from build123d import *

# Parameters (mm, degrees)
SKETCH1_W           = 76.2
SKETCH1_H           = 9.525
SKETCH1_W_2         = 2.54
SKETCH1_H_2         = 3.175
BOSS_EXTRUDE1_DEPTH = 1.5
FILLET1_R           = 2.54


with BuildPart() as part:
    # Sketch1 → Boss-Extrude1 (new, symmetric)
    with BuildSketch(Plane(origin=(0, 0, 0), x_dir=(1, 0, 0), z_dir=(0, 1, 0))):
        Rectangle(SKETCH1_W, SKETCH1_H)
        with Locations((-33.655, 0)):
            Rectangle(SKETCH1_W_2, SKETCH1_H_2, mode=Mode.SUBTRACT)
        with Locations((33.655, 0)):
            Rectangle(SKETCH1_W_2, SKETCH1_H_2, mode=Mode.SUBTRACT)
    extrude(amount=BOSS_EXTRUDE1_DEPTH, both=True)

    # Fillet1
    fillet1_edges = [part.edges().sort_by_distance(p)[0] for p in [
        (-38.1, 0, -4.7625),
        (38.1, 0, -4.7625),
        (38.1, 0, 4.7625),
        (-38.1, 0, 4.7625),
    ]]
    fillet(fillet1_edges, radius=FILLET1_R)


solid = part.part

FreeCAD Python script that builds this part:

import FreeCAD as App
import Part
import Sketcher
from FreeCAD import Vector
Q = App.Units.Quantity


def edges_at(feature, points):
    """Names of the edges that pass closest to the given points."""
    edges = feature.Shape.Edges
    near = lambda p: min(range(len(edges)), key=lambda i: edges[i].distToShape(Part.Vertex(*p))[0])
    return sorted({f"Edge{near(p) + 1}" for p in points})

doc = App.newDocument("Part")
body = doc.addObject("PartDesign::Body", "Body")

# Sketch on XZ plane
sketch1 = doc.addObject("Sketcher::SketchObject", "Sketch")
body.addObject(sketch1)
sketch1.AttachmentSupport = (doc.XZ_Plane, [""])
sketch1.MapMode = "FlatFace"
sketch1.addGeometry([
    Part.LineSegment(Vector(-38.1, -4.8, 0), Vector(-38.1, 4.8, 0)),  # 0
    Part.LineSegment(Vector(-38.1, 4.8, 0), Vector(38.1, 4.8, 0)),  # 1
    Part.LineSegment(Vector(38.1, 4.8, 0), Vector(38.1, -4.8, 0)),  # 2
    Part.LineSegment(Vector(38.1, -4.8, 0), Vector(-38.1, -4.8, 0)),  # 3
    Part.LineSegment(Vector(-32.4, 1.6, 0), Vector(-34.9, 1.6, 0)),  # 4
    Part.LineSegment(Vector(-34.9, 1.6, 0), Vector(-34.9, -1.6, 0)),  # 5
    Part.LineSegment(Vector(-34.9, -1.6, 0), Vector(-32.4, -1.6, 0)),  # 6
    Part.LineSegment(Vector(-32.4, -1.6, 0), Vector(-32.4, 1.6, 0)),  # 7
    Part.LineSegment(Vector(34.9, 1.6, 0), Vector(32.4, 1.6, 0)),  # 8
    Part.LineSegment(Vector(32.4, 1.6, 0), Vector(32.4, -1.6, 0)),  # 9
    Part.LineSegment(Vector(32.4, -1.6, 0), Vector(34.9, -1.6, 0)),  # 10
    Part.LineSegment(Vector(34.9, -1.6, 0), Vector(34.9, 1.6, 0)),  # 11
], False)
sketch1.addConstraint([
    Sketcher.Constraint("Coincident", 0, 2, 1, 1),
    Sketcher.Constraint("Coincident", 1, 2, 2, 1),
    Sketcher.Constraint("Coincident", 2, 2, 3, 1),
    Sketcher.Constraint("Coincident", 3, 2, 0, 1),
    Sketcher.Constraint("Coincident", 4, 2, 5, 1),
    Sketcher.Constraint("Coincident", 5, 2, 6, 1),
    Sketcher.Constraint("Coincident", 6, 2, 7, 1),
    Sketcher.Constraint("Coincident", 7, 2, 4, 1),
    Sketcher.Constraint("Coincident", 8, 2, 9, 1),
    Sketcher.Constraint("Coincident", 9, 2, 10, 1),
    Sketcher.Constraint("Coincident", 10, 2, 11, 1),
    Sketcher.Constraint("Coincident", 11, 2, 8, 1),
    Sketcher.Constraint("Vertical", 0),
    Sketcher.Constraint("Horizontal", 1),
    Sketcher.Constraint("Vertical", 2),
    Sketcher.Constraint("Horizontal", 3),
    Sketcher.Constraint("Horizontal", 4),
    Sketcher.Constraint("Vertical", 5),
    Sketcher.Constraint("Horizontal", 6),
    Sketcher.Constraint("Vertical", 7),
    Sketcher.Constraint("Horizontal", 8),
    Sketcher.Constraint("Vertical", 9),
    Sketcher.Constraint("Horizontal", 10),
    Sketcher.Constraint("Vertical", 11),
    Sketcher.Constraint("Symmetric", 0, 2, 2, 2, -1, 1),
    Sketcher.Constraint("Symmetric", 6, 2, 8, 2, -1, 1),
    Sketcher.Constraint("Symmetric", 4, 2, 10, 2, -1, 1),
    Sketcher.Constraint("Horizontal", 7, 2, 8, 2),
    Sketcher.Constraint("DistanceX", 1, 1, 1, 2, Q("3 in")),
    Sketcher.Constraint("DistanceX", 4, 2, 4, 1, Q("0.1 in")),
    Sketcher.Constraint("DistanceY", 0, 1, 0, 2, Q("0.375 in")),
    Sketcher.Constraint("DistanceY", 5, 2, 5, 1, Q("0.125 in")),
    Sketcher.Constraint("DistanceX", 7, 2, 8, 2, Q("2.55 in")),
])
pad1 = doc.addObject("PartDesign::Pad", "Pad")
body.addObject(pad1)
pad1.Profile = sketch1
pad1.Length = 3
pad1.Midplane = True
doc.recompute()

fillet = doc.addObject("PartDesign::Fillet", "Fillet")
body.addObject(fillet)
fillet.Base = (pad1, edges_at(pad1, [
    (-38.1, 0, -4.763),
    (38.1, 0, -4.763),
    (38.1, 0, 4.763),
    (-38.1, 0, 4.763),
]))
fillet.Radius = Q("0.1 in")

doc.recompute()
